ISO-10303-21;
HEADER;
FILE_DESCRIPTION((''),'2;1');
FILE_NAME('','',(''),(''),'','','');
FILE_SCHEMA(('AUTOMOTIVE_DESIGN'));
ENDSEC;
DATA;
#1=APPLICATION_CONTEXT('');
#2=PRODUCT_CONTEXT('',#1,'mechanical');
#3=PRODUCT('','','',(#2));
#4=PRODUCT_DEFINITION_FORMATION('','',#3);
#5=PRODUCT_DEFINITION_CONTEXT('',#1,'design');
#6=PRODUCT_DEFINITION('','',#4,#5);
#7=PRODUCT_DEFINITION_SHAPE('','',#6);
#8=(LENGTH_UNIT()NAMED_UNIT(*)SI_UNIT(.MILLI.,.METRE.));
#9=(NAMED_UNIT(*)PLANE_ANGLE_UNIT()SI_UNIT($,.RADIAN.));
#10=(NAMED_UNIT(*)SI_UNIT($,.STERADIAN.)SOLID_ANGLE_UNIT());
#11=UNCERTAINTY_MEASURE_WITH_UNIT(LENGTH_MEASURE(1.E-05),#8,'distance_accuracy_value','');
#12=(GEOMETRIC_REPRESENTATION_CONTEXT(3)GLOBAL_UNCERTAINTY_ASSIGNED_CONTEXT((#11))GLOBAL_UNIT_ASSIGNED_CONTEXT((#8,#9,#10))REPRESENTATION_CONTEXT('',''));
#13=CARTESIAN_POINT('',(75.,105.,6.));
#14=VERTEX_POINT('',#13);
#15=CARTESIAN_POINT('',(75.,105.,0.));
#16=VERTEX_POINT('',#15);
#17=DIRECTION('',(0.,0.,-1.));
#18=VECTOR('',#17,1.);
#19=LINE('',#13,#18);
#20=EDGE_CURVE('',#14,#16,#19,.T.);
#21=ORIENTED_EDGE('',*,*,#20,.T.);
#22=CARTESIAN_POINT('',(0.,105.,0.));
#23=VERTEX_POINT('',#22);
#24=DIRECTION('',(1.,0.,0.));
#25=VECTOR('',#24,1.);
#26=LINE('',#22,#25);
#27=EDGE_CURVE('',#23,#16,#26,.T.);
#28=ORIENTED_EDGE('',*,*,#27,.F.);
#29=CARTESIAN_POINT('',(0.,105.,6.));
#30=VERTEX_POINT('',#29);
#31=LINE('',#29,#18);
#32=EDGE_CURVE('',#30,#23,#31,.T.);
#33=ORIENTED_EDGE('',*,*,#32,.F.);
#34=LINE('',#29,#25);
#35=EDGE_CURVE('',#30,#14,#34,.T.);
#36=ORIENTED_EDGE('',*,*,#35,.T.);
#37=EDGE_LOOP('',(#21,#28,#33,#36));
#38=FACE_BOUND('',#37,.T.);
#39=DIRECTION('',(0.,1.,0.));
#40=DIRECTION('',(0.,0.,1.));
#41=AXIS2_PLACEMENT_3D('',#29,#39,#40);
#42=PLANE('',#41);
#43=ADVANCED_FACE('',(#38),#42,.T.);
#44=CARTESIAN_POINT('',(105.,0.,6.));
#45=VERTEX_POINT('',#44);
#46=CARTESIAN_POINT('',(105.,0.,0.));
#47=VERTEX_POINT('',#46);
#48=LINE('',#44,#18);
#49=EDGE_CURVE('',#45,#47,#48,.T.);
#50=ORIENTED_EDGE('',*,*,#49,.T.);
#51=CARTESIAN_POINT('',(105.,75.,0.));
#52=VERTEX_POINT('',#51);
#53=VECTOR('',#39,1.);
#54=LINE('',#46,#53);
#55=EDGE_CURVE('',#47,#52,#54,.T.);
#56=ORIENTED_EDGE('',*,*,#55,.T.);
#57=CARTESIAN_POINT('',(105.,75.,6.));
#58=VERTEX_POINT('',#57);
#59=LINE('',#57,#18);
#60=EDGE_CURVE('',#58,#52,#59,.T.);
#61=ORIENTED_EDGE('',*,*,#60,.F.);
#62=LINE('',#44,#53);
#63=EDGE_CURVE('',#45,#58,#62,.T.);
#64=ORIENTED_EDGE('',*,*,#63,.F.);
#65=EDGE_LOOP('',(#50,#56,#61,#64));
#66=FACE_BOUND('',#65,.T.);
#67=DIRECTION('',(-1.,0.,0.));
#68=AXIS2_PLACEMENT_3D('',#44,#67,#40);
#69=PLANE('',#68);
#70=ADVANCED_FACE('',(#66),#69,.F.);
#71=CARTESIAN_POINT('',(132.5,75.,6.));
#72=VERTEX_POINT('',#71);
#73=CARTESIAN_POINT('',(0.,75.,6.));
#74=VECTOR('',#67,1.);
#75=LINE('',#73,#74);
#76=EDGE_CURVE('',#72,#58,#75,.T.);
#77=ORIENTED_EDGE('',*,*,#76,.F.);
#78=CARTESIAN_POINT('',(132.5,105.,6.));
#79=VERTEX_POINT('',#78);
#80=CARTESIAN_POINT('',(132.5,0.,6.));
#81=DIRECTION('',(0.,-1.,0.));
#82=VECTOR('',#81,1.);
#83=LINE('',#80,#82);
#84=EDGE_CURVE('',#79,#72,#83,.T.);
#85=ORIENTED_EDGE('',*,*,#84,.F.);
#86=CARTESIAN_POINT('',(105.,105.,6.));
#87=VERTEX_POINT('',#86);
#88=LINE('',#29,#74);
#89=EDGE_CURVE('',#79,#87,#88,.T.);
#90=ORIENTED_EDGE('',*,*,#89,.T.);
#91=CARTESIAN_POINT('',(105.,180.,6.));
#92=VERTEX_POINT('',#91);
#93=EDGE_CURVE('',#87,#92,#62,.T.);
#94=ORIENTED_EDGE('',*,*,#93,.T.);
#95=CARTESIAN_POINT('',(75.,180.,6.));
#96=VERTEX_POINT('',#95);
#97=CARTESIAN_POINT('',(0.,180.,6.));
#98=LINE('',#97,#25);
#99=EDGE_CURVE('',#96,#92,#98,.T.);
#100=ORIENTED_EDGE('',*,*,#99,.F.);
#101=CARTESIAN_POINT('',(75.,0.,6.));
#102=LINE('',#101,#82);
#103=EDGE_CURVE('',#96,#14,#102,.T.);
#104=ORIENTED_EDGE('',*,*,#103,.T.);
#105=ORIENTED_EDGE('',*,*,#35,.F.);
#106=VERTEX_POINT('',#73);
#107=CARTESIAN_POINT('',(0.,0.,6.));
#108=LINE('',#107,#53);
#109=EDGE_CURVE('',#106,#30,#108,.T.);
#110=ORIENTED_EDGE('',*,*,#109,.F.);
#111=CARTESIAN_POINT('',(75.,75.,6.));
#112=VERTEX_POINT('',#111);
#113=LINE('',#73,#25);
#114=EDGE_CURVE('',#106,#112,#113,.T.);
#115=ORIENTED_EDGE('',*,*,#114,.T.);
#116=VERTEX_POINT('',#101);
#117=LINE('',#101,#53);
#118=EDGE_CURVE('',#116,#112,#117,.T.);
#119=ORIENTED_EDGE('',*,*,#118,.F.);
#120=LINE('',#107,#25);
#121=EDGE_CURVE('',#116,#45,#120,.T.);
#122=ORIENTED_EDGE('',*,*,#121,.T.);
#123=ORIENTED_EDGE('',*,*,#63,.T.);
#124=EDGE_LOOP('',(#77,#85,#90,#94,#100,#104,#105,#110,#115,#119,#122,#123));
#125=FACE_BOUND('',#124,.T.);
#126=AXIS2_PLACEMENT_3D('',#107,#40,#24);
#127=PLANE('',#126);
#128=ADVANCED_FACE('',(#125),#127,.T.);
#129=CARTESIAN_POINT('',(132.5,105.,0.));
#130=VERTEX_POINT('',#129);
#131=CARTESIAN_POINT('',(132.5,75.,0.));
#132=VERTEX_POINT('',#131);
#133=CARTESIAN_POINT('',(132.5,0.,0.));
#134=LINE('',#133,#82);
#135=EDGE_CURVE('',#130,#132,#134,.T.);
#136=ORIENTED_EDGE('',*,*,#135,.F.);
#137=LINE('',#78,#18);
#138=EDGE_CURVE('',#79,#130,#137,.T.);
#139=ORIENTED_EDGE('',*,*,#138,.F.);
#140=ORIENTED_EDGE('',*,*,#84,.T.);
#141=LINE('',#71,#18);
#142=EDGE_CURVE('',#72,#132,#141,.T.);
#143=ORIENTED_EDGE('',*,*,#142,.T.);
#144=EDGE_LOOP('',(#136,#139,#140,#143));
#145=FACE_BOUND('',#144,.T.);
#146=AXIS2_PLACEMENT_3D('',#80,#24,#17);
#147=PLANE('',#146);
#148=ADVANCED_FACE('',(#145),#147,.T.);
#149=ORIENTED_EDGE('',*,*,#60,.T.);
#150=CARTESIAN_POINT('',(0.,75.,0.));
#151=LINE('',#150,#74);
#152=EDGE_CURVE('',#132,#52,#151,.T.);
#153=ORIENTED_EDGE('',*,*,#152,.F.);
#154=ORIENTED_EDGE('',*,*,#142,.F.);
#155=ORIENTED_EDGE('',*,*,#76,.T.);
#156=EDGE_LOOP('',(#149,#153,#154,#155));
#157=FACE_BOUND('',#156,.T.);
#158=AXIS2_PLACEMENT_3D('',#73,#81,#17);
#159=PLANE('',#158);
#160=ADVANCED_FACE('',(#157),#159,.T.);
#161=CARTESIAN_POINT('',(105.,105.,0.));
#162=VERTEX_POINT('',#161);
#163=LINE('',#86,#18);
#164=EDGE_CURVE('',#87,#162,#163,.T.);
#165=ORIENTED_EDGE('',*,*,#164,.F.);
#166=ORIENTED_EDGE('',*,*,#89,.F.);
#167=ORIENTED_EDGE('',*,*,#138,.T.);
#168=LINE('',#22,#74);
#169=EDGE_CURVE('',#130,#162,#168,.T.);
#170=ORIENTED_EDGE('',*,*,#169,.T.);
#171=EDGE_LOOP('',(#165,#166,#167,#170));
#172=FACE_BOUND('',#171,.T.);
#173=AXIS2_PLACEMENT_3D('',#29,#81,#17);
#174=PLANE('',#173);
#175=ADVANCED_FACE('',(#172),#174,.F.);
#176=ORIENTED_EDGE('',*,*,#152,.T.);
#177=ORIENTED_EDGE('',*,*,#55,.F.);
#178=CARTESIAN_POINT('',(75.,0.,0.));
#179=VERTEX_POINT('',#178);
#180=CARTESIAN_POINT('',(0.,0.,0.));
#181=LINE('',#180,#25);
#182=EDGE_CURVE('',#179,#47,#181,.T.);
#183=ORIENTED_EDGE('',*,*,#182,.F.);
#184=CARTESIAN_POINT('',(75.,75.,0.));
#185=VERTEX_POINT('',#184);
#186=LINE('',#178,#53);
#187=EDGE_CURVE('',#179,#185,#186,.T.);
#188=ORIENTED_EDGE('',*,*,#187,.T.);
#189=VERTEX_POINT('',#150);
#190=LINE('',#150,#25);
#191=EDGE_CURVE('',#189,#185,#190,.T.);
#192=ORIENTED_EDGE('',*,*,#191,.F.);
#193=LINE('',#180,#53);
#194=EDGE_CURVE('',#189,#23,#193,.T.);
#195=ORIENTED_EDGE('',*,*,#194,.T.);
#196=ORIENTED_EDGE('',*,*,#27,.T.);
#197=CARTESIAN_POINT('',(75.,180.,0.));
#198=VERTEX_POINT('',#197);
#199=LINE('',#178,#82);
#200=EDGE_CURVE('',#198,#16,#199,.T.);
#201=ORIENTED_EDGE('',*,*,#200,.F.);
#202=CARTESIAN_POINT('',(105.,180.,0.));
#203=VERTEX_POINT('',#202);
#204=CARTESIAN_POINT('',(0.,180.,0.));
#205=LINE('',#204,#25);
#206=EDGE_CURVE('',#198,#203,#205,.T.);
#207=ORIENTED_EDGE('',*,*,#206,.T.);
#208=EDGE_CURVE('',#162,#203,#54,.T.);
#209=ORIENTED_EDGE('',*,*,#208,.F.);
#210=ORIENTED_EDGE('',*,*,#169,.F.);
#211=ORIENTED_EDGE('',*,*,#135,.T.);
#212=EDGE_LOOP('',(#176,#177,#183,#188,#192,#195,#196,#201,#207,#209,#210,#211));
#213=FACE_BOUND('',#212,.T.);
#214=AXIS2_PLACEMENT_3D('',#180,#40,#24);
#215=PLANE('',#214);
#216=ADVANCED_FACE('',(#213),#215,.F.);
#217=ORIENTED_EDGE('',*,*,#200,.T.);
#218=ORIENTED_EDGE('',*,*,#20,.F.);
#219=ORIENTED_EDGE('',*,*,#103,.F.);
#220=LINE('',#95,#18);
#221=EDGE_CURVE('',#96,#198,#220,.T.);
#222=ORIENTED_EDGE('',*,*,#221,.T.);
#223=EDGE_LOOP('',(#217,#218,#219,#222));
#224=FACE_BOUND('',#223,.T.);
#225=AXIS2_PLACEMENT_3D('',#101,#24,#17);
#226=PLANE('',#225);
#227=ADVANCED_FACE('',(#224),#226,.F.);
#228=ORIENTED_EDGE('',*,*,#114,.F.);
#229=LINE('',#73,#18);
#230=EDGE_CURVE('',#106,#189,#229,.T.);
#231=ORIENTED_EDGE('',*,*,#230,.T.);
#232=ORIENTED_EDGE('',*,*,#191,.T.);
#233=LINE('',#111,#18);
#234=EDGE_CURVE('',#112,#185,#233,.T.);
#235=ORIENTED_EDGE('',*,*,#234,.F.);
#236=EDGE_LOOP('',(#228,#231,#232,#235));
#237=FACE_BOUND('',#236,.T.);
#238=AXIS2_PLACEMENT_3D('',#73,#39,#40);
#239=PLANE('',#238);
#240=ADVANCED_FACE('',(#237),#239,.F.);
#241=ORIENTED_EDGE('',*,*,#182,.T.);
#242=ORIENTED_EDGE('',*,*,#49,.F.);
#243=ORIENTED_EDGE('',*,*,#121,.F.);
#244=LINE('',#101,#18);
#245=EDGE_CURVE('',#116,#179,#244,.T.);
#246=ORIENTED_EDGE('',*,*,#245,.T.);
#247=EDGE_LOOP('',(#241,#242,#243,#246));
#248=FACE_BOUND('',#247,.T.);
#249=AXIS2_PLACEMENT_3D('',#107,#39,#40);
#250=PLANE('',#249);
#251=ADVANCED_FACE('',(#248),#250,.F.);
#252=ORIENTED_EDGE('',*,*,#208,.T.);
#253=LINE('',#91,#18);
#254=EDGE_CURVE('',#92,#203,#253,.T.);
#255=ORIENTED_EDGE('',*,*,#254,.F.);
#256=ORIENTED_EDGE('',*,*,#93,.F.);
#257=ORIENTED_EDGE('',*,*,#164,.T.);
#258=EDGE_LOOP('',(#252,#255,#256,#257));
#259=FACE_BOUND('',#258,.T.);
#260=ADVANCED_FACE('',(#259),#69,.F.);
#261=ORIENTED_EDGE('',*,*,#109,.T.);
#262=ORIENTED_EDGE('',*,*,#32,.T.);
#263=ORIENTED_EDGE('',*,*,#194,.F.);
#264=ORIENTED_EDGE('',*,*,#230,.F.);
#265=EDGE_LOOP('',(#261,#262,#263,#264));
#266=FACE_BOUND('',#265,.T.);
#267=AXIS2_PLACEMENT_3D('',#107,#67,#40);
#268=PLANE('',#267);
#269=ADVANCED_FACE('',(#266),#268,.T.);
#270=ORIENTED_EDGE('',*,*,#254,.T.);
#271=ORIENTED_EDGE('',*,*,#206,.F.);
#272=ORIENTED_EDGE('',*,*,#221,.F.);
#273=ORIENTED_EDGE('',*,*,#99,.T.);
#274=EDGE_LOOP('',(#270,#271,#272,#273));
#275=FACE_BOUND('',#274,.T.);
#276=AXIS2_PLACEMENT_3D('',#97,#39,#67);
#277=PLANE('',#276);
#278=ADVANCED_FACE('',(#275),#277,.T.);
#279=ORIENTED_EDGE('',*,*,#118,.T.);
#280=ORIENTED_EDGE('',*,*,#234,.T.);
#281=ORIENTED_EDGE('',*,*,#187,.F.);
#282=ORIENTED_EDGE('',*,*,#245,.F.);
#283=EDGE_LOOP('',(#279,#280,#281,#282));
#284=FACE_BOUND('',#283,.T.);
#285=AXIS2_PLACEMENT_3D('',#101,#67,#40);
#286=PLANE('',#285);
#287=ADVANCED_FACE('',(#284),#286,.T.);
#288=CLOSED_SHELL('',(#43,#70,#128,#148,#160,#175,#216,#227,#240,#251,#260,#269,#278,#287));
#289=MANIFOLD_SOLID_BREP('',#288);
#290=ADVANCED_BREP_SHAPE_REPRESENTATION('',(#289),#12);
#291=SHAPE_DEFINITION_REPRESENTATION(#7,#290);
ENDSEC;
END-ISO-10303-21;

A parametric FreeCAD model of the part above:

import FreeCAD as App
import Part
import Sketcher

V = App.Vector
Q = App.Units.Quantity

doc = App.newDocument("Part")
body = doc.addObject("PartDesign::Body", "Body")

# Sketch on XY plane
sketch1 = body.newObject("Sketcher::SketchObject", "Sketch")
sketch1.AttachmentSupport = (doc.getObject("XY_Plane"), [""])
sketch1.MapMode = "FlatFace"
sketch1.addGeometry([
    Part.LineSegment(V(75, 75, 0), V(75, 0, 0)),  # 0
    Part.LineSegment(V(75, 0, 0), V(105, 0, 0)),  # 1
    Part.LineSegment(V(105, 0, 0), V(105, 75, 0)),  # 2
    Part.LineSegment(V(105, 75, 0), V(132, 75, 0)),  # 3
    Part.LineSegment(V(132, 75, 0), V(132, 105, 0)),  # 4
    Part.LineSegment(V(132, 105, 0), V(105, 105, 0)),  # 5
    Part.LineSegment(V(105, 105, 0), V(105, 180, 0)),  # 6
    Part.LineSegment(V(105, 180, 0), V(75, 180, 0)),  # 7
    Part.LineSegment(V(75, 180, 0), V(75, 105, 0)),  # 8
    Part.LineSegment(V(75, 105, 0), V(0, 105, 0)),  # 9
    Part.LineSegment(V(0, 105, 0), V(0, 75, 0)),  # 10
    Part.LineSegment(V(0, 75, 0), V(75, 75, 0)),  # 11
], False)
sketch1.addConstraint([
    Sketcher.Constraint("Coincident", 0, 2, 1, 1),
    Sketcher.Constraint("Coincident", 1, 2, 2, 1),
    Sketcher.Constraint("Coincident", 2, 2, 3, 1),
    Sketcher.Constraint("Coincident", 3, 2, 4, 1),
    Sketcher.Constraint("Coincident", 4, 2, 5, 1),
    Sketcher.Constraint("Coincident", 5, 2, 6, 1),
    Sketcher.Constraint("Coincident", 6, 2, 7, 1),
    Sketcher.Constraint("Coincident", 7, 2, 8, 1),
    Sketcher.Constraint("Coincident", 8, 2, 9, 1),
    Sketcher.Constraint("Coincident", 9, 2, 10, 1),
    Sketcher.Constraint("Coincident", 10, 2, 11, 1),
    Sketcher.Constraint("Coincident", 11, 2, 0, 1),
    Sketcher.Constraint("Vertical", 0),
    Sketcher.Constraint("Horizontal", 1),
    Sketcher.Constraint("Vertical", 2),
    Sketcher.Constraint("Horizontal", 3),
    Sketcher.Constraint("Vertical", 4),
    Sketcher.Constraint("Horizontal", 5),
    Sketcher.Constraint("Vertical", 6),
    Sketcher.Constraint("Horizontal", 7),
    Sketcher.Constraint("Vertical", 8),
    Sketcher.Constraint("Horizontal", 9),
    Sketcher.Constraint("Vertical", 10),
    Sketcher.Constraint("Horizontal", 11),
    Sketcher.Constraint("PointOnObject", 0, 2, -1),
    Sketcher.Constraint("PointOnObject", 9, 2, -2),
    Sketcher.Constraint("Horizontal", 5, 2, 8, 2),
    Sketcher.Constraint("Horizontal", 3, 2, 10, 2),
    Sketcher.Constraint("Vertical", 2, 2, 5, 2),
    Sketcher.Constraint("Vertical", 0, 2, 7, 2),
    Sketcher.Constraint("Equal", 11, 0),
    Sketcher.Constraint("Equal", 7, 4),
    Sketcher.Constraint("Equal", 2, 6),
    Sketcher.Constraint("DistanceX", 1, 1, 1, 2, Q("30 mm")),
    Sketcher.Constraint("DistanceX", 9, 2, 9, 1, Q("75 mm")),
    Sketcher.Constraint("DistanceX", 3, 1, 3, 2, Q("27.5 mm")),
])
pad1 = body.newObject("PartDesign::Pad", "Pad")
pad1.Profile = sketch1
pad1.Length = 6

doc.recompute()
